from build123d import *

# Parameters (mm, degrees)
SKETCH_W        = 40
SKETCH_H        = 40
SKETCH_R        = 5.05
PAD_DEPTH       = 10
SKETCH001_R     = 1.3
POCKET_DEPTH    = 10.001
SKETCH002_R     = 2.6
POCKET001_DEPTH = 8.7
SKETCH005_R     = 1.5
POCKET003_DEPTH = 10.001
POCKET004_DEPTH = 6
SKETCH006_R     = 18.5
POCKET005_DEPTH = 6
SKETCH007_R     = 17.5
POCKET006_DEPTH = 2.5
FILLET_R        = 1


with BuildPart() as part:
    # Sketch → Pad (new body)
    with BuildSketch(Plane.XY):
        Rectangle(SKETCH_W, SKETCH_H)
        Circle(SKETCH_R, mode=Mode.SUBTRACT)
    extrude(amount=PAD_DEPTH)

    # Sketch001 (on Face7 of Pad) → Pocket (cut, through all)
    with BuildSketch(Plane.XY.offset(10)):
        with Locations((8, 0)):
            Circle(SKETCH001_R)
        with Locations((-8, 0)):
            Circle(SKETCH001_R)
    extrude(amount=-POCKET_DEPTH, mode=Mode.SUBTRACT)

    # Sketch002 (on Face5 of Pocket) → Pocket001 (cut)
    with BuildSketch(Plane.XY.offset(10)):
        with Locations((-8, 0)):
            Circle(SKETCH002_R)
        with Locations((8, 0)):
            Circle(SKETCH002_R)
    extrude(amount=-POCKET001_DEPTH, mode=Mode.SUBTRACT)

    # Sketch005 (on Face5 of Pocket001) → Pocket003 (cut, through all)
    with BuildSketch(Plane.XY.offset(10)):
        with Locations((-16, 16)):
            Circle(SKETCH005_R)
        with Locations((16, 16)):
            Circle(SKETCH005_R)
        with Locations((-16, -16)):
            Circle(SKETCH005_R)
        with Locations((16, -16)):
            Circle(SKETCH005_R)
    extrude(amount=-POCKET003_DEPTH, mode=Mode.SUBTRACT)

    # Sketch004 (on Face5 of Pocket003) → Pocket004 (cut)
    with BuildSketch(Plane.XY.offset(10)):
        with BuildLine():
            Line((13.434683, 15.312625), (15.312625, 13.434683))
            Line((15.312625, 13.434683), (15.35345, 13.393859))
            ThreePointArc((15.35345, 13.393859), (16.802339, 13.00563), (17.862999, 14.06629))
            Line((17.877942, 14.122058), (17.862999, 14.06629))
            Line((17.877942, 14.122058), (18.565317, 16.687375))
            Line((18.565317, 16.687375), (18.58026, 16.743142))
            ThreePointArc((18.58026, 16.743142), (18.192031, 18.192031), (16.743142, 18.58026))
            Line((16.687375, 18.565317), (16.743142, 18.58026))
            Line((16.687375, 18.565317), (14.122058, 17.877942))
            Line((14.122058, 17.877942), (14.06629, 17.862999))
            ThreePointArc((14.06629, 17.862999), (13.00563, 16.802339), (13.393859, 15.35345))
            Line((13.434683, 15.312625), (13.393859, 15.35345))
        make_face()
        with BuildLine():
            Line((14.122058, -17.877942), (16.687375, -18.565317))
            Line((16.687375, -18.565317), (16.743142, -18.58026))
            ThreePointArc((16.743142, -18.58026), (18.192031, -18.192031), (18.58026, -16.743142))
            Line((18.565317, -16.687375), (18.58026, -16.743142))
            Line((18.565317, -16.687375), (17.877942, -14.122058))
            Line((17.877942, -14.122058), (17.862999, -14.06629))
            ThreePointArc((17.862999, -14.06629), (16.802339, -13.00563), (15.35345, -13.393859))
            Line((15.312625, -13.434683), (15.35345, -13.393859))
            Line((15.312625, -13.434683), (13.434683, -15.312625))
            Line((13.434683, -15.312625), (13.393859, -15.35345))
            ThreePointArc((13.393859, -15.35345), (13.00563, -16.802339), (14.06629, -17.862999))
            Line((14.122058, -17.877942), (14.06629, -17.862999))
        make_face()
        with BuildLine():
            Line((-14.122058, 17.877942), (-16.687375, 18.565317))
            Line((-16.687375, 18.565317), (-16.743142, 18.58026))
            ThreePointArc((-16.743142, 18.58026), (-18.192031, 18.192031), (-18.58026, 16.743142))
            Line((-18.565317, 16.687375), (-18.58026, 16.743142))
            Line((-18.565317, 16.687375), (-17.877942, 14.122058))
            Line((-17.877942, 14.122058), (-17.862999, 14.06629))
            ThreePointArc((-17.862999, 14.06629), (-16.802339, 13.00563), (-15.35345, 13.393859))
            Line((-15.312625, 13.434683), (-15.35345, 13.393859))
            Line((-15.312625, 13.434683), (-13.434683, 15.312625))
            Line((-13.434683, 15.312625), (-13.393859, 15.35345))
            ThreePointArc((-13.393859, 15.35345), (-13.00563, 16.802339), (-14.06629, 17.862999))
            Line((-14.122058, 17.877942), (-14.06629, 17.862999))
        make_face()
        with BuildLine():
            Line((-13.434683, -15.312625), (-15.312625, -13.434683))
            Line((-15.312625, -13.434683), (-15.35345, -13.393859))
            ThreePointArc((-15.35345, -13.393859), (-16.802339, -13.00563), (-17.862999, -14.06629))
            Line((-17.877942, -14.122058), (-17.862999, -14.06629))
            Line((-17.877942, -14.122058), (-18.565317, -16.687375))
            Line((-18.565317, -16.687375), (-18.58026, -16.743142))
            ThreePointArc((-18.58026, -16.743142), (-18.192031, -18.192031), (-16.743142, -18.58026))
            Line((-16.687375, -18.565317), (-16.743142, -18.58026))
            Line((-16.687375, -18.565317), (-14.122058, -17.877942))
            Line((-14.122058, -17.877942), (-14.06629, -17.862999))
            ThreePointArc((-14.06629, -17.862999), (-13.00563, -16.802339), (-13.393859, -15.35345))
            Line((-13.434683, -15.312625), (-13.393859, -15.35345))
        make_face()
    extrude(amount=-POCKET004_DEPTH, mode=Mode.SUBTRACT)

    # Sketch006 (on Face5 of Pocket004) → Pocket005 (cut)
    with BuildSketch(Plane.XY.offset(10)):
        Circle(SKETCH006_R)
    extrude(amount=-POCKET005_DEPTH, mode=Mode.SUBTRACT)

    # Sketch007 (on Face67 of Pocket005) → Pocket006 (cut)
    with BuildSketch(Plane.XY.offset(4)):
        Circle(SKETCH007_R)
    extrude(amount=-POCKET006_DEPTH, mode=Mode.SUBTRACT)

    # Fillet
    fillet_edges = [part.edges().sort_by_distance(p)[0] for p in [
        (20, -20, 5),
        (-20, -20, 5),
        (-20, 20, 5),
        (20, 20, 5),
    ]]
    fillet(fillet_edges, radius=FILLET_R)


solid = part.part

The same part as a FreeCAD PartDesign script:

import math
import FreeCAD as App
import Part
import Sketcher

V = App.Vector
Q = App.Units.Quantity


def edges_at(feature, points):
    """Names of the edges that pass closest to the given points."""
    edges = feature.Shape.Edges
    near = lambda p: min(range(len(edges)), key=lambda i: edges[i].distToShape(Part.Vertex(*p))[0])
    return sorted({f"Edge{near(p) + 1}" for p in points})

doc = App.newDocument("Part")
body = doc.addObject("PartDesign::Body", "Body")

# Sketch on XY plane
sketch1 = body.newObject("Sketcher::SketchObject", "Sketch")
sketch1.AttachmentSupport = (doc.getObject("XY_Plane"), [""])
sketch1.MapMode = "FlatFace"
sketch1.addGeometry(Part.LineSegment(V(-20, 20, 0), V(-20, -20, 0)), False)
sketch1.addGeometry(Part.LineSegment(V(-20, -20, 0), V(20, -20, 0)), False)
sketch1.addGeometry(Part.LineSegment(V(20, -20, 0), V(20, 20, 0)), False)
sketch1.addGeometry(Part.LineSegment(V(20, 20, 0), V(-20, 20, 0)), False)
sketch1.addGeometry(Part.Circle(V(0, 0, 0), V(0, 0, 1), 5), False)
sketch1.addConstraint(Sketcher.Constraint("Coincident", 0, 2, 1, 1))
sketch1.addConstraint(Sketcher.Constraint("Coincident", 1, 2, 2, 1))
sketch1.addConstraint(Sketcher.Constraint("Coincident", 2, 2, 3, 1))
sketch1.addConstraint(Sketcher.Constraint("Coincident", 3, 2, 0, 1))
sketch1.addConstraint(Sketcher.Constraint("Vertical", 0))
sketch1.addConstraint(Sketcher.Constraint("Horizontal", 1))
sketch1.addConstraint(Sketcher.Constraint("Vertical", 2))
sketch1.addConstraint(Sketcher.Constraint("Horizontal", 3))
sketch1.addConstraint(Sketcher.Constraint("Coincident", 4, 3, -1, 1))
sketch1.addConstraint(Sketcher.Constraint("Symmetric", 0, 2, 2, 2, -1, 1))
sketch1.addConstraint(Sketcher.Constraint("Equal", 3, 0))
sketch1.addConstraint(Sketcher.Constraint("Diameter", 4, 10.1))
sketch1.addConstraint(Sketcher.Constraint("DistanceX", 1, 1, 1, 2, 40.0))
pad1 = body.newObject("PartDesign::Pad", "Pad")
pad1.Profile = sketch1
pad1.Length = 10

# Sketch on XY plane
sketch2 = body.newObject("Sketcher::SketchObject", "Sketch001")
sketch2.AttachmentSupport = (doc.getObject("XY_Plane"), [""])
sketch2.MapMode = "FlatFace"
sketch2.AttachmentOffset = App.Placement(V(0, 0, 10), App.Rotation())
sketch2.addGeometry(Part.Circle(V(8, 0, 0), V(0, 0, 1), 1.3), False)
sketch2.addGeometry(Part.Circle(V(-8, 0, 0), V(0, 0, 1), 1.3), False)
sketch2.addConstraint(Sketcher.Constraint("Equal", 0, 1))
sketch2.addConstraint(Sketcher.Constraint("Symmetric", 0, 3, 1, 3, -1, 1))
sketch2.addConstraint(Sketcher.Constraint("PointOnObject", 0, 3, -1))
sketch2.addConstraint(Sketcher.Constraint("Diameter", 0, 2.6))
sketch2.addConstraint(Sketcher.Constraint("DistanceX", -1, 1, 0, 3, 8.0))
pocket1 = body.newObject("PartDesign::Pocket", "Pocket")
pocket1.Profile = sketch2
pocket1.Type = "ThroughAll"

# Sketch on XY plane
sketch3 = body.newObject("Sketcher::SketchObject", "Sketch002")
sketch3.AttachmentSupport = (doc.getObject("XY_Plane"), [""])
sketch3.MapMode = "FlatFace"
sketch3.AttachmentOffset = App.Placement(V(0, 0, 10), App.Rotation())
sketch3.addGeometry(Part.Circle(V(-8, 0, 0), V(0, 0, 1), 2.6), False)
sketch3.addGeometry(Part.Circle(V(8, 0, 0), V(0, 0, 1), 2.6), False)
sketch3.addConstraint(Sketcher.Constraint("Equal", 0, 1))
sketch3.addConstraint(Sketcher.Constraint("Symmetric", 0, 3, 1, 3, -1, 1))
sketch3.addConstraint(Sketcher.Constraint("PointOnObject", 0, 3, -1))
sketch3.addConstraint(Sketcher.Constraint("Diameter", 0, 5.2))
sketch3.addConstraint(Sketcher.Constraint("DistanceX", 0, 3, -1, 1, 8.0))
pocket2 = body.newObject("PartDesign::Pocket", "Pocket001")
pocket2.Profile = sketch3
pocket2.Length = 8.7

# Sketch on XY plane
sketch4 = body.newObject("Sketcher::SketchObject", "Sketch003")
sketch4.AttachmentSupport = (doc.getObject("XY_Plane"), [""])
sketch4.MapMode = "FlatFace"
sketch4.AttachmentOffset = App.Placement(V(0, 0, 10), App.Rotation())
sketch4.addGeometry(Part.Circle(V(-16, 16, 0), V(0, 0, 1), 1.5), False)
sketch4.addGeometry(Part.Circle(V(16, 16, 0), V(0, 0, 1), 1.5), False)
sketch4.addGeometry(Part.Circle(V(-16, -16, 0), V(0, 0, 1), 1.5), False)
sketch4.addGeometry(Part.Circle(V(16, -16, 0), V(0, 0, 1), 1.5), False)
sketch4.addConstraint(Sketcher.Constraint("Equal", 0, 1))
sketch4.addConstraint(Sketcher.Constraint("Equal", 1, 2))
sketch4.addConstraint(Sketcher.Constraint("Equal", 2, 3))
sketch4.addConstraint(Sketcher.Constraint("Symmetric", 1, 3, 2, 3, -1, 1))
sketch4.addConstraint(Sketcher.Constraint("Symmetric", 0, 3, 3, 3, -1, 1))
sketch4.addConstraint(Sketcher.Constraint("Symmetric", 0, 3, 1, 3, -2))
sketch4.addConstraint(Sketcher.Constraint("Diameter", 0, 3.0))
sketch4.addConstraint(Sketcher.Constraint("DistanceX", 0, 3, -1, 1, 16.0))
sketch4.addConstraint(Sketcher.Constraint("DistanceY", -1, 1, 0, 3, 16.0))
pocket3 = body.newObject("PartDesign::Pocket", "Pocket002")
pocket3.Profile = sketch4
pocket3.Type = "ThroughAll"

# Sketch on XY plane
sketch5 = body.newObject("Sketcher::SketchObject", "Sketch004")
sketch5.AttachmentSupport = (doc.getObject("XY_Plane"), [""])
sketch5.MapMode = "FlatFace"
sketch5.AttachmentOffset = App.Placement(V(0, 0, 10), App.Rotation())
sketch5.addGeometry(Part.LineSegment(V(13.43, 15.31, 0), V(15.31, 13.43, 0)), False)
sketch5.addGeometry(Part.LineSegment(V(15.31, 13.43, 0), V(15.35, 13.39, 0)), False)
sketch5.addGeometry(Part.ArcOfCircle(Part.Circle(V(16.41, 14.45, 0), V(0, 0, 1), 1.5), math.radians(-135), math.radians(-15)), False)
sketch5.addGeometry(Part.LineSegment(V(17.86, 14.07, 0), V(17.88, 14.12, 0)), False)
sketch5.addGeometry(Part.LineSegment(V(17.88, 14.12, 0), V(18.57, 16.69, 0)), False)
sketch5.addGeometry(Part.LineSegment(V(18.57, 16.69, 0), V(18.58, 16.74, 0)), False)
sketch5.addGeometry(Part.ArcOfCircle(Part.Circle(V(17.13, 17.13, 0), V(0, 0, 1), 1.5), math.radians(-15), math.radians(105)), False)
sketch5.addGeometry(Part.LineSegment(V(16.74, 18.58, 0), V(16.69, 18.57, 0)), False)
sketch5.addGeometry(Part.LineSegment(V(16.69, 18.57, 0), V(14.12, 17.88, 0)), False)
sketch5.addGeometry(Part.LineSegment(V(14.12, 17.88, 0), V(14.07, 17.86, 0)), False)
sketch5.addGeometry(Part.ArcOfCircle(Part.Circle(V(14.45, 16.41, 0), V(0, 0, 1), 1.5), math.radians(105), math.radians(225)), False)
sketch5.addGeometry(Part.LineSegment(V(13.39, 15.35, 0), V(13.43, 15.31, 0)), False)
sketch5.addGeometry(Part.LineSegment(V(14.12, -17.88, 0), V(16.69, -18.57, 0)), False)
sketch5.addGeometry(Part.LineSegment(V(16.69, -18.57, 0), V(16.74, -18.58, 0)), False)
sketch5.addGeometry(Part.ArcOfCircle(Part.Circle(V(17.13, -17.13, 0), V(0, 0, 1), 1.5), math.radians(-105), math.radians(15)), False)
sketch5.addGeometry(Part.LineSegment(V(18.58, -16.74, 0), V(18.57, -16.69, 0)), False)
sketch5.addGeometry(Part.LineSegment(V(18.57, -16.69, 0), V(17.88, -14.12, 0)), False)
sketch5.addGeometry(Part.LineSegment(V(17.88, -14.12, 0), V(17.86, -14.07, 0)), False)
sketch5.addGeometry(Part.ArcOfCircle(Part.Circle(V(16.41, -14.45, 0), V(0, 0, 1), 1.5), math.radians(15), math.radians(135)), False)
sketch5.addGeometry(Part.LineSegment(V(15.35, -13.39, 0), V(15.31, -13.43, 0)), False)
sketch5.addGeometry(Part.LineSegment(V(15.31, -13.43, 0), V(13.43, -15.31, 0)), False)
sketch5.addGeometry(Part.LineSegment(V(13.43, -15.31, 0), V(13.39, -15.35, 0)), False)
sketch5.addGeometry(Part.ArcOfCircle(Part.Circle(V(14.45, -16.41, 0), V(0, 0, 1), 1.5), math.radians(135), math.radians(255)), False)
sketch5.addGeometry(Part.LineSegment(V(14.07, -17.86, 0), V(14.12, -17.88, 0)), False)
sketch5.addGeometry(Part.LineSegment(V(-14.12, 17.88, 0), V(-16.69, 18.57, 0)), False)
sketch5.addGeometry(Part.LineSegment(V(-16.69, 18.57, 0), V(-16.74, 18.58, 0)), False)
sketch5.addGeometry(Part.ArcOfCircle(Part.Circle(V(-17.13, 17.13, 0), V(0, 0, 1), 1.5), math.radians(75), math.radians(195)), False)
sketch5.addGeometry(Part.LineSegment(V(-18.58, 16.74, 0), V(-18.57, 16.69, 0)), False)
sketch5.addGeometry(Part.LineSegment(V(-18.57, 16.69, 0), V(-17.88, 14.12, 0)), False)
sketch5.addGeometry(Part.LineSegment(V(-17.88, 14.12, 0), V(-17.86, 14.07, 0)), False)
sketch5.addGeometry(Part.ArcOfCircle(Part.Circle(V(-16.41, 14.45, 0), V(0, 0, 1), 1.5), math.radians(-165), math.radians(-45)), False)
sketch5.addGeometry(Part.LineSegment(V(-15.35, 13.39, 0), V(-15.31, 13.43, 0)), False)
sketch5.addGeometry(Part.LineSegment(V(-15.31, 13.43, 0), V(-13.43, 15.31, 0)), False)
sketch5.addGeometry(Part.LineSegment(V(-13.43, 15.31, 0), V(-13.39, 15.35, 0)), False)
sketch5.addGeometry(Part.ArcOfCircle(Part.Circle(V(-14.45, 16.41, 0), V(0, 0, 1), 1.5), math.radians(-45), math.radians(75)), False)
sketch5.addGeometry(Part.LineSegment(V(-14.07, 17.86, 0), V(-14.12, 17.88, 0)), False)
sketch5.addGeometry(Part.LineSegment(V(-13.43, -15.31, 0), V(-15.31, -13.43, 0)), False)
sketch5.addGeometry(Part.LineSegment(V(-15.31, -13.43, 0), V(-15.35, -13.39, 0)), False)
sketch5.addGeometry(Part.ArcOfCircle(Part.Circle(V(-16.41, -14.45, 0), V(0, 0, 1), 1.5), math.radians(45), math.radians(165)), False)
sketch5.addGeometry(Part.LineSegment(V(-17.86, -14.07, 0), V(-17.88, -14.12, 0)), False)
sketch5.addGeometry(Part.LineSegment(V(-17.88, -14.12, 0), V(-18.57, -16.69, 0)), False)
sketch5.addGeometry(Part.LineSegment(V(-18.57, -16.69, 0), V(-18.58, -16.74, 0)), False)
sketch5.addGeometry(Part.ArcOfCircle(Part.Circle(V(-17.13, -17.13, 0), V(0, 0, 1), 1.5), math.radians(165), math.radians(285)), False)
sketch5.addGeometry(Part.LineSegment(V(-16.74, -18.58, 0), V(-16.69, -18.57, 0)), False)
sketch5.addGeometry(Part.LineSegment(V(-16.69, -18.57, 0), V(-14.12, -17.88, 0)), False)
sketch5.addGeometry(Part.LineSegment(V(-14.12, -17.88, 0), V(-14.07, -17.86, 0)), False)
sketch5.addGeometry(Part.ArcOfCircle(Part.Circle(V(-14.45, -16.41, 0), V(0, 0, 1), 1.5), math.radians(-75), math.radians(45)), False)
sketch5.addGeometry(Part.LineSegment(V(-13.39, -15.35, 0), V(-13.43, -15.31, 0)), False)
sketch5.addConstraint(Sketcher.Constraint("Coincident", 0, 2, 1, 1))
sketch5.addConstraint(Sketcher.Constraint("Coincident", 1, 2, 2, 1))
sketch5.addConstraint(Sketcher.Constraint("Tangent", 2, 2, 3, 1))
sketch5.addConstraint(Sketcher.Constraint("Coincident", 3, 2, 4, 1))
sketch5.addConstraint(Sketcher.Constraint("Coincident", 4, 2, 5, 1))
sketch5.addConstraint(Sketcher.Constraint("Coincident", 5, 2, 6, 1))
sketch5.addConstraint(Sketcher.Constraint("Coincident", 6, 2, 7, 1))
sketch5.addConstraint(Sketcher.Constraint("Coincident", 7, 2, 8, 1))
sketch5.addConstraint(Sketcher.Constraint("Coincident", 8, 2, 9, 1))
sketch5.addConstraint(Sketcher.Constraint("Tangent", 9, 2, 10, 1))
sketch5.addConstraint(Sketcher.Constraint("Coincident", 10, 2, 11, 1))
sketch5.addConstraint(Sketcher.Constraint("Coincident", 11, 2, 0, 1))
sketch5.addConstraint(Sketcher.Constraint("Coincident", 12, 2, 13, 1))
sketch5.addConstraint(Sketcher.Constraint("Coincident", 13, 2, 14, 1))
sketch5.addConstraint(Sketcher.Constraint("Coincident", 14, 2, 15, 1))
sketch5.addConstraint(Sketcher.Constraint("Coincident", 15, 2, 16, 1))
sketch5.addConstraint(Sketcher.Constraint("Coincident", 16, 2, 17, 1))
sketch5.addConstraint(Sketcher.Constraint("Tangent", 17, 2, 18, 1))
sketch5.addConstraint(Sketcher.Constraint("Coincident", 18, 2, 19, 1))
sketch5.addConstraint(Sketcher.Constraint("Coincident", 19, 2, 20, 1))
sketch5.addConstraint(Sketcher.Constraint("Coincident", 20, 2, 21, 1))
sketch5.addConstraint(Sketcher.Constraint("Coincident", 21, 2, 22, 1))
sketch5.addConstraint(Sketcher.Constraint("Tangent", 22, 2, 23, 1))
sketch5.addConstraint(Sketcher.Constraint("Coincident", 23, 2, 12, 1))
sketch5.addConstraint(Sketcher.Constraint("Coincident", 24, 2, 25, 1))
sketch5.addConstraint(Sketcher.Constraint("Coincident", 25, 2, 26, 1))
sketch5.addConstraint(Sketcher.Constraint("Coincident", 26, 2, 27, 1))
sketch5.addConstraint(Sketcher.Constraint("Coincident", 27, 2, 28, 1))
sketch5.addConstraint(Sketcher.Constraint("Coincident", 28, 2, 29, 1))
sketch5.addConstraint(Sketcher.Constraint("Tangent", 29, 2, 30, 1))
sketch5.addConstraint(Sketcher.Constraint("Coincident", 30, 2, 31, 1))
sketch5.addConstraint(Sketcher.Constraint("Coincident", 31, 2, 32, 1))
sketch5.addConstraint(Sketcher.Constraint("Coincident", 32, 2, 33, 1))
sketch5.addConstraint(Sketcher.Constraint("Coincident", 33, 2, 34, 1))
sketch5.addConstraint(Sketcher.Constraint("Tangent", 34, 2, 35, 1))
sketch5.addConstraint(Sketcher.Constraint("Coincident", 35, 2, 24, 1))
sketch5.addConstraint(Sketcher.Constraint("Coincident", 36, 2, 37, 1))
sketch5.addConstraint(Sketcher.Constraint("Coincident", 37, 2, 38, 1))
sketch5.addConstraint(Sketcher.Constraint("Tangent", 38, 2, 39, 1))
sketch5.addConstraint(Sketcher.Constraint("Coincident", 39, 2, 40, 1))
sketch5.addConstraint(Sketcher.Constraint("Coincident", 40, 2, 41, 1))
sketch5.addConstraint(Sketcher.Constraint("Coincident", 41, 2, 42, 1))
sketch5.addConstraint(Sketcher.Constraint("Coincident", 42, 2, 43, 1))
sketch5.addConstraint(Sketcher.Constraint("Coincident", 43, 2, 44, 1))
sketch5.addConstraint(Sketcher.Constraint("Coincident", 44, 2, 45, 1))
sketch5.addConstraint(Sketcher.Constraint("Tangent", 45, 2, 46, 1))
sketch5.addConstraint(Sketcher.Constraint("Coincident", 46, 2, 47, 1))
sketch5.addConstraint(Sketcher.Constraint("Coincident", 47, 2, 36, 1))
sketch5.addConstraint(Sketcher.Constraint("Equal", 2, 6))
sketch5.addConstraint(Sketcher.Constraint("Equal", 6, 10))
sketch5.addConstraint(Sketcher.Constraint("Equal", 10, 14))
sketch5.addConstraint(Sketcher.Constraint("Equal", 14, 18))
sketch5.addConstraint(Sketcher.Constraint("Equal", 18, 22))
sketch5.addConstraint(Sketcher.Constraint("Equal", 22, 26))
sketch5.addConstraint(Sketcher.Constraint("Equal", 26, 30))
sketch5.addConstraint(Sketcher.Constraint("Equal", 30, 34))
sketch5.addConstraint(Sketcher.Constraint("Equal", 34, 38))
sketch5.addConstraint(Sketcher.Constraint("Equal", 38, 42))
sketch5.addConstraint(Sketcher.Constraint("Equal", 42, 46))
sketch5.addConstraint(Sketcher.Constraint("Symmetric", 14, 3, 26, 3, -1, 1))
sketch5.addConstraint(Sketcher.Constraint("Symmetric", 18, 3, 30, 3, -1, 1))
sketch5.addConstraint(Sketcher.Constraint("Symmetric", 22, 3, 34, 3, -1, 1))
sketch5.addConstraint(Sketcher.Constraint("Symmetric", 2, 3, 38, 3, -1, 1))
sketch5.addConstraint(Sketcher.Constraint("Symmetric", 6, 3, 42, 3, -1, 1))
sketch5.addConstraint(Sketcher.Constraint("Symmetric", 10, 3, 46, 3, -1, 1))
sketch5.addConstraint(Sketcher.Constraint("Symmetric", 12, 2, 24, 2, -1, 1))
sketch5.addConstraint(Sketcher.Constraint("Symmetric", 15, 2, 27, 2, -1, 1))
sketch5.addConstraint(Sketcher.Constraint("Symmetric", 16, 2, 28, 2, -1, 1))
sketch5.addConstraint(Sketcher.Constraint("Symmetric", 19, 2, 31, 2, -1, 1))
sketch5.addConstraint(Sketcher.Constraint("Symmetric", 20, 2, 32, 2, -1, 1))
sketch5.addConstraint(Sketcher.Constraint("Symmetric", 23, 2, 35, 2, -1, 1))
sketch5.addConstraint(Sketcher.Constraint("Symmetric", 0, 2, 36, 2, -1, 1))
sketch5.addConstraint(Sketcher.Constraint("Symmetric", 3, 2, 39, 2, -1, 1))
sketch5.addConstraint(Sketcher.Constraint("Symmetric", 4, 2, 40, 2, -1, 1))
sketch5.addConstraint(Sketcher.Constraint("Symmetric", 7, 2, 43, 2, -1, 1))
sketch5.addConstraint(Sketcher.Constraint("Symmetric", 8, 2, 44, 2, -1, 1))
sketch5.addConstraint(Sketcher.Constraint("Symmetric", 11, 2, 47, 2, -1, 1))
sketch5.addConstraint(Sketcher.Constraint("Symmetric", 6, 3, 26, 3, -2))
sketch5.addConstraint(Sketcher.Constraint("Symmetric", 2, 3, 30, 3, -2))
sketch5.addConstraint(Sketcher.Constraint("Symmetric", 10, 3, 34, 3, -2))
sketch5.addConstraint(Sketcher.Constraint("Symmetric", 7, 2, 24, 2, -2))
sketch5.addConstraint(Sketcher.Constraint("Symmetric", 4, 2, 27, 2, -2))
sketch5.addConstraint(Sketcher.Constraint("Symmetric", 3, 2, 28, 2, -2))
sketch5.addConstraint(Sketcher.Constraint("Symmetric", 0, 2, 31, 2, -2))
sketch5.addConstraint(Sketcher.Constraint("Symmetric", 11, 2, 32, 2, -2))
sketch5.addConstraint(Sketcher.Constraint("Symmetric", 8, 2, 35, 2, -2))
sketch5.addConstraint(Sketcher.Constraint("Parallel", 3, 4))
sketch5.addConstraint(Sketcher.Constraint("Parallel", 8, 9))
sketch5.addConstraint(Sketcher.Constraint("Perpendicular", 4, 12))
sketch5.addConstraint(Sketcher.Constraint("Perpendicular", 5, 13))
sketch5.addConstraint(Sketcher.Constraint("Perpendicular", 11, 19))
sketch5.addConstraint(Sketcher.Constraint("Perpendicular", 0, 20))
sketch5.addConstraint(Sketcher.Constraint("Horizontal", 6, 2, 25, 2))
sketch5.addConstraint(Sketcher.Constraint("Horizontal", 5, 2, 26, 2))
sketch5.addConstraint(Sketcher.Constraint("Horizontal", 1, 2, 30, 2))
sketch5.addConstraint(Sketcher.Constraint("Horizontal", 10, 2, 33, 2))
sketch5.addConstraint(Sketcher.Constraint("Horizontal", 18, 2, 37, 2))
sketch5.addConstraint(Sketcher.Constraint("Horizontal", 14, 2, 41, 2))
sketch5.addConstraint(Sketcher.Constraint("Horizontal", 13, 2, 42, 2))
sketch5.addConstraint(Sketcher.Constraint("Horizontal", 21, 2, 46, 2))
sketch5.addConstraint(Sketcher.Constraint("Vertical", 6, 2, 13, 2))
sketch5.addConstraint(Sketcher.Constraint("Vertical", 5, 2, 14, 2))
sketch5.addConstraint(Sketcher.Constraint("Vertical", 1, 2, 18, 2))
sketch5.addConstraint(Sketcher.Constraint("Vertical", 10, 2, 21, 2))
sketch5.addConstraint(Sketcher.Constraint("Equal", 1, 3))
sketch5.addConstraint(Sketcher.Constraint("Equal", 0, 4))
sketch5.addConstraint(Sketcher.Constraint("Equal", 3, 5))
sketch5.addConstraint(Sketcher.Constraint("Equal", 5, 7))
sketch5.addConstraint(Sketcher.Constraint("Equal", 4, 8))
sketch5.addConstraint(Sketcher.Constraint("Equal", 7, 9))
sketch5.addConstraint(Sketcher.Constraint("Equal", 9, 11))
sketch5.addConstraint(Sketcher.Constraint("Radius", 2, 1.5))
sketch5.addConstraint(Sketcher.Constraint("Angle", 3, Q("74.999991 deg")))
sketch5.addConstraint(Sketcher.Constraint("DistanceX", -1, 1, 2, 2, 17.862999))
sketch5.addConstraint(Sketcher.Constraint("DistanceY", -1, 1, 9, 2, 17.862999))
sketch5.addConstraint(Sketcher.Constraint("DistanceX", 25, 2, 10, 2, 30.137001))
sketch5.addConstraint(Sketcher.Constraint("DistanceY", 18, 3, 0, 2, 27.889202))
sketch5.addConstraint(Sketcher.Constraint("DistanceY", 1, 2, 3, 2, 0.728199))
sketch5.addConstraint(Sketcher.Constraint("DistanceX", 10, 3, 4, 2, 4.110798))
sketch5.addConstraint(Sketcher.Constraint("DistanceX", 10, 2, 8, 2, 0.728199))
sketch5.addConstraint(Sketcher.Constraint("Distance", 0, 2.655811))
pocket4 = body.newObject("PartDesign::Pocket", "Pocket003")
pocket4.Profile = sketch5
pocket4.Length = 6

# Sketch on XY plane
sketch6 = body.newObject("Sketcher::SketchObject", "Sketch005")
sketch6.AttachmentSupport = (doc.getObject("XY_Plane"), [""])
sketch6.MapMode = "FlatFace"
sketch6.AttachmentOffset = App.Placement(V(0, 0, 10), App.Rotation())
sketch6.addGeometry(Part.Circle(V(0, 0, 0), V(0, 0, 1), 18), False)
sketch6.addConstraint(Sketcher.Constraint("Coincident", 0, 3, -1, 1))
sketch6.addConstraint(Sketcher.Constraint("Diameter", 0, 37.0))
pocket5 = body.newObject("PartDesign::Pocket", "Pocket004")
pocket5.Profile = sketch6
pocket5.Length = 6

# Sketch on XY plane
sketch7 = body.newObject("Sketcher::SketchObject", "Sketch006")
sketch7.AttachmentSupport = (doc.getObject("XY_Plane"), [""])
sketch7.MapMode = "FlatFace"
sketch7.AttachmentOffset = App.Placement(V(0, 0, 4), App.Rotation())
sketch7.addGeometry(Part.Circle(V(0, 0, 0), V(0, 0, 1), 18), False)
sketch7.addConstraint(Sketcher.Constraint("Coincident", 0, 3, -1, 1))
sketch7.addConstraint(Sketcher.Constraint("Diameter", 0, 35.0))
pocket6 = body.newObject("PartDesign::Pocket", "Pocket005")
pocket6.Profile = sketch7
pocket6.Length = 2.5
doc.recompute()

fillet = body.newObject("PartDesign::Fillet", "Fillet")
fillet.Base = (pocket6, edges_at(pocket6, [
    (20, -20, 5),
    (-20, -20, 5),
    (-20, 20, 5),
    (20, 20, 5),
]))
fillet.Radius = 1

doc.recompute()
